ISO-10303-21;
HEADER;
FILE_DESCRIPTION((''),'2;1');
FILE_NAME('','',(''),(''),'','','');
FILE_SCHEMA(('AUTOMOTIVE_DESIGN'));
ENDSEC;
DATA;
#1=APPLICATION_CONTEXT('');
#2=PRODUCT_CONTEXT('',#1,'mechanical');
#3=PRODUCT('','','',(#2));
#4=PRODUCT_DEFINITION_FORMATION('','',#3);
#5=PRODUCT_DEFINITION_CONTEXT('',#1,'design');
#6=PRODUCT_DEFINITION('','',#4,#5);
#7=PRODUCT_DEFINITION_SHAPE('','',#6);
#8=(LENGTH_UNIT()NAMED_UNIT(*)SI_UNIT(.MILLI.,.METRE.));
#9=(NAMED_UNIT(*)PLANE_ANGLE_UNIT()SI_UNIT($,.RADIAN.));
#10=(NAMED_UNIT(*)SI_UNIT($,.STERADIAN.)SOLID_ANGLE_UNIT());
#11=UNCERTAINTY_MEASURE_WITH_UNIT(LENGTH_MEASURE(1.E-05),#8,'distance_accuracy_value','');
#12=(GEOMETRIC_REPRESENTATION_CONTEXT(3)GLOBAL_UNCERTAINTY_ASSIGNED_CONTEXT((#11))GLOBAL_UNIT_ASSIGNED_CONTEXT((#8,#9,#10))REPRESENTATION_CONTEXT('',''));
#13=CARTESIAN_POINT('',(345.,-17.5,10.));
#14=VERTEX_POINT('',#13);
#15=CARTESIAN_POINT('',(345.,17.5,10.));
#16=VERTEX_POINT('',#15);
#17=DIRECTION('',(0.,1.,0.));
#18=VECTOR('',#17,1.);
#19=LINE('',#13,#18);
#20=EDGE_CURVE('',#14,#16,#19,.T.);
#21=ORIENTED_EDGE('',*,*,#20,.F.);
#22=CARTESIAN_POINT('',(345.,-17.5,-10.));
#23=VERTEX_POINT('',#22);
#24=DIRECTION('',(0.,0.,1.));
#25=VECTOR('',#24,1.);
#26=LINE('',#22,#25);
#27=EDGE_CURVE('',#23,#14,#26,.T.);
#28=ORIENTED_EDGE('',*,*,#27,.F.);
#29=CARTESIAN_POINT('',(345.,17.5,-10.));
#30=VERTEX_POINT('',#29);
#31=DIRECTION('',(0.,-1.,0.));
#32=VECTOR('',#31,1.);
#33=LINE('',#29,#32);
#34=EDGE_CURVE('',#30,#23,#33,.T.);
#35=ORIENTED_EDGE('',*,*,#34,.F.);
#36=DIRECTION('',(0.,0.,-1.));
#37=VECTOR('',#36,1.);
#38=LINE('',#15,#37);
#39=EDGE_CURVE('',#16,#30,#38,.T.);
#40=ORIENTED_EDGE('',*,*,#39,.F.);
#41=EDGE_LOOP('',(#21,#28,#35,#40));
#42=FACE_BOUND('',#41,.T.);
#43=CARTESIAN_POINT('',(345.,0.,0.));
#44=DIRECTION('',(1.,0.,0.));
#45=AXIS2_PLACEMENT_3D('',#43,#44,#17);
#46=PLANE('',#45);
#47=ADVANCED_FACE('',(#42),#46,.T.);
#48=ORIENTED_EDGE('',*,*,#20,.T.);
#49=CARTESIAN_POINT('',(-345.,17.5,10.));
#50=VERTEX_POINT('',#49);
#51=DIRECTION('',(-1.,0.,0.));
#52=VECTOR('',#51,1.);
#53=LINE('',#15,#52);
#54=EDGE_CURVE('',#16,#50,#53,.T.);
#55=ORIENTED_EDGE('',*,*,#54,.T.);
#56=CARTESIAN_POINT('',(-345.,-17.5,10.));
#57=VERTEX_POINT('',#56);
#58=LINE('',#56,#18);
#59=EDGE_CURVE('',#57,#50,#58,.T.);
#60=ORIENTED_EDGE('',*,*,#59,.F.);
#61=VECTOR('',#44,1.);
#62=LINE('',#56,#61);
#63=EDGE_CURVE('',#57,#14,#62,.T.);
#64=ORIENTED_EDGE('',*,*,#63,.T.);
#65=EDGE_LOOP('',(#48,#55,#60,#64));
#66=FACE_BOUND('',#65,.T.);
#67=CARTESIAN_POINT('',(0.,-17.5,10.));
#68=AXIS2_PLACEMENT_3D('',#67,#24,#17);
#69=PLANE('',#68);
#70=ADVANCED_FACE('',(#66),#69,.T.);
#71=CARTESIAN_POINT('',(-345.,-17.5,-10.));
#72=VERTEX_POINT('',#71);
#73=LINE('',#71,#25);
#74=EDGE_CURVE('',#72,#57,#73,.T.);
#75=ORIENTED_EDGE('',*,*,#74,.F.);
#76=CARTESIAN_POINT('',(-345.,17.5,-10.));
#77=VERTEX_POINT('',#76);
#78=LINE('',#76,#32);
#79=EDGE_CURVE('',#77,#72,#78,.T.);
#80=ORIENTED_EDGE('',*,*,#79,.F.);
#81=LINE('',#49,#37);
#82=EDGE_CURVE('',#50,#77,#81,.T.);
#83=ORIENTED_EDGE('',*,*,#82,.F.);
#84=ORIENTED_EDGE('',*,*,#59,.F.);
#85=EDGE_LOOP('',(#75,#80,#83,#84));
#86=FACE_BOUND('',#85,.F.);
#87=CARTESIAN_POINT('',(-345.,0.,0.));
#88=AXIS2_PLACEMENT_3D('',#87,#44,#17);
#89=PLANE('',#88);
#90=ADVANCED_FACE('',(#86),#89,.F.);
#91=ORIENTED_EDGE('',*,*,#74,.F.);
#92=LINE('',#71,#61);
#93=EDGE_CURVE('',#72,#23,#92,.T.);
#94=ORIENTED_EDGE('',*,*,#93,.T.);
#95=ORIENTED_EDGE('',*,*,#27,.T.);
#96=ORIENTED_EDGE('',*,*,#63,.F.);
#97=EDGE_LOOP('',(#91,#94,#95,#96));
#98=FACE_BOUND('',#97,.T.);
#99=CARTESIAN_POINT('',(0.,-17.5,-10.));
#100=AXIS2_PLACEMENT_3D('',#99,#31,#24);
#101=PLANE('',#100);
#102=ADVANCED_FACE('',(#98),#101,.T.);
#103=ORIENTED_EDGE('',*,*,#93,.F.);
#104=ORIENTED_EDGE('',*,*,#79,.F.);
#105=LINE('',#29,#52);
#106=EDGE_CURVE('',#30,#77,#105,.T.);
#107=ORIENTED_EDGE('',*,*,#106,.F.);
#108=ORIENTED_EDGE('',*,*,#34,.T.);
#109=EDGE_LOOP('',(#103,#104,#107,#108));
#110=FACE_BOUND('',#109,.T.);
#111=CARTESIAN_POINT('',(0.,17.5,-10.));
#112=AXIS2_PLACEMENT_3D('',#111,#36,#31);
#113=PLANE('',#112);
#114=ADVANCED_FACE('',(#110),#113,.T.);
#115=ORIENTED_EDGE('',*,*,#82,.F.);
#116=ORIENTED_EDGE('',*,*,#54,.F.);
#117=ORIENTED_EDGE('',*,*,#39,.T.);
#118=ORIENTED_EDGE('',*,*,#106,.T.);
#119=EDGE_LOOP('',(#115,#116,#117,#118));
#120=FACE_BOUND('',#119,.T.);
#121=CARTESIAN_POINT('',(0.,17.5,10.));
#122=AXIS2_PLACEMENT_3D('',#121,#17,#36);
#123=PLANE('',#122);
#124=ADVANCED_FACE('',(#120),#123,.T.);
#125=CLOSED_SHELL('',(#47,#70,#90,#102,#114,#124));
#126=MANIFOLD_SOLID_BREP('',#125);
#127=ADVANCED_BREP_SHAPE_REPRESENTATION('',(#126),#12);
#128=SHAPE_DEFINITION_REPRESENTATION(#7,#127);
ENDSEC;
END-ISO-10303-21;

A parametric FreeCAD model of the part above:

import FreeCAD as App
import Part
import Sketcher

doc = App.newDocument("Part")
body = doc.addObject("PartDesign::Body", "Body")

sketch1 = body.newObject("Sketcher::SketchObject", "Sketch")
sketch1.AttachmentSupport = (doc.getObject("YZ_Plane"), [""])
sketch1.MapMode = "FlatFace"
sketch1.addGeometry(Part.LineSegment(App.Vector(18, 10, 0), App.Vector(-18, 10, 0)), False)
sketch1.addGeometry(Part.LineSegment(App.Vector(-18, 10, 0), App.Vector(-18, -10, 0)), False)
sketch1.addGeometry(Part.LineSegment(App.Vector(-18, -10, 0), App.Vector(18, -10, 0)), False)
sketch1.addGeometry(Part.LineSegment(App.Vector(18, -10, 0), App.Vector(18, 10, 0)), False)
sketch1.addConstraint(Sketcher.Constraint("Coincident", 0, 2, 1, 1))
sketch1.addConstraint(Sketcher.Constraint("Coincident", 1, 2, 2, 1))
sketch1.addConstraint(Sketcher.Constraint("Coincident", 2, 2, 3, 1))
sketch1.addConstraint(Sketcher.Constraint("Coincident", 3, 2, 0, 1))
sketch1.addConstraint(Sketcher.Constraint("Horizontal", 0))
sketch1.addConstraint(Sketcher.Constraint("Vertical", 1))
sketch1.addConstraint(Sketcher.Constraint("Horizontal", 2))
sketch1.addConstraint(Sketcher.Constraint("Vertical", 3))
sketch1.addConstraint(Sketcher.Constraint("Symmetric", 0, 2, 2, 2, -1, 1))
sketch1.addConstraint(Sketcher.Constraint("DistanceX", 0, 2, 0, 1, 35.0))
sketch1.addConstraint(Sketcher.Constraint("DistanceY", 1, 2, 1, 1, 20.0))
pad1 = body.newObject("PartDesign::Pad", "Pad")
pad1.Profile = sketch1
pad1.Length = 690
pad1.Midplane = True

doc.recompute()
